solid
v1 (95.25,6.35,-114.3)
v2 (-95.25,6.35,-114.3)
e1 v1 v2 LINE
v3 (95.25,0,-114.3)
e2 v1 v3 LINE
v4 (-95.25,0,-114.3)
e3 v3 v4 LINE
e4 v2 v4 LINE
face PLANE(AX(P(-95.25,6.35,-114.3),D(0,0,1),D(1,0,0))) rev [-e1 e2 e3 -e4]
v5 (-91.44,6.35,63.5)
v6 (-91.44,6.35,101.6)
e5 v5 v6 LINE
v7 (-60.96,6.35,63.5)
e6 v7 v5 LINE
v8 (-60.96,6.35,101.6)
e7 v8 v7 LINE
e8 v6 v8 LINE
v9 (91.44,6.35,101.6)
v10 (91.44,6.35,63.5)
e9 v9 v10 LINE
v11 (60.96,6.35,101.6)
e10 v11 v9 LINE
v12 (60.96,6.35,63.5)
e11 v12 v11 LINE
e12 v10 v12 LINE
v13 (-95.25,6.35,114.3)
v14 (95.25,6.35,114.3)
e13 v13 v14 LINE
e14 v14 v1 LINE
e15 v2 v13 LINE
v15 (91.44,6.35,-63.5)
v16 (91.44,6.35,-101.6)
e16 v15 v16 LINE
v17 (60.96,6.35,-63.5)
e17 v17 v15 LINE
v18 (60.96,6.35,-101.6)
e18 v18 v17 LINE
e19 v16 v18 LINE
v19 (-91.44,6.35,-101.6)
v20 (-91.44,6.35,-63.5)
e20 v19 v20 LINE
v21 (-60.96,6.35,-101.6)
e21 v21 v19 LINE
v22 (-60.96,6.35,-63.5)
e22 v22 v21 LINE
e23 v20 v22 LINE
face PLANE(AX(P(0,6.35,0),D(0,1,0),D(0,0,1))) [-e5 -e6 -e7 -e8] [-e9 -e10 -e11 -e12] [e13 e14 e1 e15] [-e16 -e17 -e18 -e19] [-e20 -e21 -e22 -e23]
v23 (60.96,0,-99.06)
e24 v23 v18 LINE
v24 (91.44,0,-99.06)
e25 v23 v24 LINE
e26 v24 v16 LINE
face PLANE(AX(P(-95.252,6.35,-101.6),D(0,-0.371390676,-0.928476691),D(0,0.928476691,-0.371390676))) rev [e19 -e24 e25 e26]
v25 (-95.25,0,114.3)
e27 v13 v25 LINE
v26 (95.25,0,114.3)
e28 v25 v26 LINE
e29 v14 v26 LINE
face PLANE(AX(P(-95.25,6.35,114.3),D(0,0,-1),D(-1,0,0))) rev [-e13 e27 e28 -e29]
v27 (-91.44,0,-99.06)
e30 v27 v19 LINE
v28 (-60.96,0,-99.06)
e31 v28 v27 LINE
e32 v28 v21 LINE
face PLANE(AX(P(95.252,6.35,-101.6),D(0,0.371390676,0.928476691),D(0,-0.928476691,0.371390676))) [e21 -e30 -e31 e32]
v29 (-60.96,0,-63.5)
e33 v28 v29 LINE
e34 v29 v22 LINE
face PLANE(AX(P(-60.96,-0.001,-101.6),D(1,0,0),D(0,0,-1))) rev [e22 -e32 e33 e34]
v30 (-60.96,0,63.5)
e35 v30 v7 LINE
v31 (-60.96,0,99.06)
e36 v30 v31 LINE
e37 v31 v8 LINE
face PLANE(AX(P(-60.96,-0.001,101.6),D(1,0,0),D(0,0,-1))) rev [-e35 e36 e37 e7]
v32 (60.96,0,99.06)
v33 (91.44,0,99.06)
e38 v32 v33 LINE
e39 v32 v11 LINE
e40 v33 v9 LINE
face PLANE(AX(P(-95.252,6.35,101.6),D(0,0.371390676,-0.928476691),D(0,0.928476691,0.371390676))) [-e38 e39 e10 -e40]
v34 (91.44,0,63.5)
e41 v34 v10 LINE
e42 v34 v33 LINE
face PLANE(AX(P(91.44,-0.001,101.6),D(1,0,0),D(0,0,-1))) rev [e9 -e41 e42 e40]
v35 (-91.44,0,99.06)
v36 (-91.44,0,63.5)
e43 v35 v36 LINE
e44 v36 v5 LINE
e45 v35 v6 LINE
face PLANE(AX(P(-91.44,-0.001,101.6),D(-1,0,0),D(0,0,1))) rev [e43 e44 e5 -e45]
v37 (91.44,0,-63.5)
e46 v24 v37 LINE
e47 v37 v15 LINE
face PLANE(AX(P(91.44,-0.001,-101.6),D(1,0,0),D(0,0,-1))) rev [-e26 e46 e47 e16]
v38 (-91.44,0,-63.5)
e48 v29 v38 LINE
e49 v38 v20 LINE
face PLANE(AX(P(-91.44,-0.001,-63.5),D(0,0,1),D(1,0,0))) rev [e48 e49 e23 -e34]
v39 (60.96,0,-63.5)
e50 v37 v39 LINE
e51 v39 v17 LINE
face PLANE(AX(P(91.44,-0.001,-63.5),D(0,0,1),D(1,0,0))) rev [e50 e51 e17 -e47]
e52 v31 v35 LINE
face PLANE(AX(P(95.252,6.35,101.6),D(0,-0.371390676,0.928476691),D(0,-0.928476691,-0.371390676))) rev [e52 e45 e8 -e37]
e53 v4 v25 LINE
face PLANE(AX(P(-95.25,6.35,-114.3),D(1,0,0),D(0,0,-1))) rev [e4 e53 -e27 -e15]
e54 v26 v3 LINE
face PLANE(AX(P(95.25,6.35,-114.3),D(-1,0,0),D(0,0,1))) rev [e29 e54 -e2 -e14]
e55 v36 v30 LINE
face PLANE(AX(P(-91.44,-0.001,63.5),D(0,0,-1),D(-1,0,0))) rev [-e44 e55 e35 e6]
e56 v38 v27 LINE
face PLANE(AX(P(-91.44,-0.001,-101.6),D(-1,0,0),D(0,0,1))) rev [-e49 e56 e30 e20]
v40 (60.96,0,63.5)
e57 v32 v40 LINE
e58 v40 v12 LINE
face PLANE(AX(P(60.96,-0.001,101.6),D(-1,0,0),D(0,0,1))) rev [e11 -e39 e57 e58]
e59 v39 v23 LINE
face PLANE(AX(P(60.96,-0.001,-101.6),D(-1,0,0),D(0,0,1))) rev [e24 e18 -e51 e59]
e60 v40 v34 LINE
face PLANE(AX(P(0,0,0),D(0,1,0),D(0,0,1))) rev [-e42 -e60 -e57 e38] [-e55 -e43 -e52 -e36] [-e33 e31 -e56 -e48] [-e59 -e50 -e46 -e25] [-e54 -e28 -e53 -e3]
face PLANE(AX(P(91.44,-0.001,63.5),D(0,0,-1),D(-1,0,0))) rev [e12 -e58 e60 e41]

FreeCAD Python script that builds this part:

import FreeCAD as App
import Part
import Sketcher
from FreeCAD import Vector
Q = App.Units.Quantity

doc = App.newDocument("Part")
body = doc.addObject("PartDesign::Body", "Body")

# Sketch on XZ plane
sketch1 = body.newObject("Sketcher::SketchObject", "Sketch")
sketch1.AttachmentSupport = (doc.getObject("XZ_Plane"), [""])
sketch1.MapMode = "FlatFace"
sketch1.addGeometry(Part.LineSegment(Vector(-95, -114, 0), Vector(-95, 114, 0)), False)
sketch1.addGeometry(Part.LineSegment(Vector(-95, 114, 0), Vector(95, 114, 0)), False)
sketch1.addGeometry(Part.LineSegment(Vector(95, 114, 0), Vector(95, -114, 0)), False)
sketch1.addGeometry(Part.LineSegment(Vector(95, -114, 0), Vector(-95, -114, 0)), False)
sketch1.addConstraint(Sketcher.Constraint("Coincident", 0, 2, 1, 1))
sketch1.addConstraint(Sketcher.Constraint("Coincident", 1, 2, 2, 1))
sketch1.addConstraint(Sketcher.Constraint("Coincident", 2, 2, 3, 1))
sketch1.addConstraint(Sketcher.Constraint("Coincident", 3, 2, 0, 1))
sketch1.addConstraint(Sketcher.Constraint("Vertical", 0))
sketch1.addConstraint(Sketcher.Constraint("Horizontal", 1))
sketch1.addConstraint(Sketcher.Constraint("Vertical", 2))
sketch1.addConstraint(Sketcher.Constraint("Horizontal", 3))
sketch1.addConstraint(Sketcher.Constraint("Symmetric", 0, 2, 2, 2, -1, 1))
sketch1.addConstraint(Sketcher.Constraint("DistanceY", 0, 1, 0, 2, Q("9 in")))
sketch1.addConstraint(Sketcher.Constraint("DistanceX", 1, 1, 1, 2, Q("7.5 in")))
pad1 = body.newObject("PartDesign::Pad", "Pad")
pad1.Profile = sketch1
pad1.Length = Q("0.25 in")
pad1.Reversed = True

# Sketch on XZ plane
sketch2 = body.newObject("Sketcher::SketchObject", "Sketch001")
sketch2.AttachmentSupport = (doc.getObject("XZ_Plane"), [""])
sketch2.MapMode = "FlatFace"
sketch2.AttachmentOffset = App.Placement(Vector(0, 0, -0.25 * 25.4), App.Rotation())
sketch2.addGeometry(Part.LineSegment(Vector(-91, -102, 0), Vector(-91, -64, 0)), False)
sketch2.addGeometry(Part.LineSegment(Vector(-91, -64, 0), Vector(-61, -64, 0)), False)
sketch2.addGeometry(Part.LineSegment(Vector(-61, -64, 0), Vector(-61, -102, 0)), False)
sketch2.addGeometry(Part.LineSegment(Vector(-61, -102, 0), Vector(-91, -102, 0)), False)
sketch2.addConstraint(Sketcher.Constraint("Coincident", 0, 2, 1, 1))
sketch2.addConstraint(Sketcher.Constraint("Coincident", 1, 2, 2, 1))
sketch2.addConstraint(Sketcher.Constraint("Coincident", 2, 2, 3, 1))
sketch2.addConstraint(Sketcher.Constraint("Coincident", 3, 2, 0, 1))
sketch2.addConstraint(Sketcher.Constraint("Vertical", 0))
sketch2.addConstraint(Sketcher.Constraint("Horizontal", 1))
sketch2.addConstraint(Sketcher.Constraint("Vertical", 2))
sketch2.addConstraint(Sketcher.Constraint("Horizontal", 3))
sketch2.addConstraint(Sketcher.Constraint("DistanceX", 1, 1, 1, 2, Q("1.2 in")))
sketch2.addConstraint(Sketcher.Constraint("DistanceY", 0, 1, 0, 2, Q("1.5 in")))
sketch2.addConstraint(Sketcher.Constraint("DistanceY", 2, 2, -1, 1, Q("4 in")))
sketch2.addConstraint(Sketcher.Constraint("DistanceX", 0, 2, -1, 1, Q("3.6 in")))
pocket1 = body.newObject("PartDesign::Pocket", "Pocket")
pocket1.Profile = sketch2
pocket1.Type = "UpToFirst"
pocket1.Reversed = True

# Sketch on XZ plane
sketch3 = body.newObject("Sketcher::SketchObject", "Sketch002")
sketch3.AttachmentSupport = (doc.getObject("XZ_Plane"), [""])
sketch3.MapMode = "FlatFace"
sketch3.AttachmentOffset = App.Placement(Vector(0, 0, -0.25 * 25.4), App.Rotation())
sketch3.addGeometry(Part.LineSegment(Vector(-91, 64, 0), Vector(-91, 102, 0)), False)
sketch3.addGeometry(Part.LineSegment(Vector(-91, 102, 0), Vector(-61, 102, 0)), False)
sketch3.addGeometry(Part.LineSegment(Vector(-61, 102, 0), Vector(-61, 64, 0)), False)
sketch3.addGeometry(Part.LineSegment(Vector(-61, 64, 0), Vector(-91, 64, 0)), False)
sketch3.addConstraint(Sketcher.Constraint("Coincident", 0, 2, 1, 1))
sketch3.addConstraint(Sketcher.Constraint("Coincident", 1, 2, 2, 1))
sketch3.addConstraint(Sketcher.Constraint("Coincident", 2, 2, 3, 1))
sketch3.addConstraint(Sketcher.Constraint("Coincident", 3, 2, 0, 1))
sketch3.addConstraint(Sketcher.Constraint("Vertical", 0))
sketch3.addConstraint(Sketcher.Constraint("Horizontal", 1))
sketch3.addConstraint(Sketcher.Constraint("Vertical", 2))
sketch3.addConstraint(Sketcher.Constraint("Horizontal", 3))
sketch3.addConstraint(Sketcher.Constraint("DistanceX", 1, 1, 1, 2, Q("1.2 in")))
sketch3.addConstraint(Sketcher.Constraint("DistanceY", 0, 1, 0, 2, Q("1.5 in")))
sketch3.addConstraint(Sketcher.Constraint("DistanceY", -1, 1, 0, 2, Q("4 in")))
sketch3.addConstraint(Sketcher.Constraint("DistanceX", 0, 2, -1, 1, Q("3.6 in")))
pocket2 = body.newObject("PartDesign::Pocket", "Pocket001")
pocket2.Profile = sketch3
pocket2.Type = "UpToFirst"
pocket2.Reversed = True

# Sketch on XZ plane
sketch4 = body.newObject("Sketcher::SketchObject", "Sketch003")
sketch4.AttachmentSupport = (doc.getObject("XZ_Plane"), [""])
sketch4.MapMode = "FlatFace"
sketch4.AttachmentOffset = App.Placement(Vector(0, 0, -0.25 * 25.4), App.Rotation())
sketch4.addGeometry(Part.LineSegment(Vector(61, 64, 0), Vector(61, 102, 0)), False)
sketch4.addGeometry(Part.LineSegment(Vector(61, 102, 0), Vector(91, 102, 0)), False)
sketch4.addGeometry(Part.LineSegment(Vector(91, 102, 0), Vector(91, 64, 0)), False)
sketch4.addGeometry(Part.LineSegment(Vector(91, 64, 0), Vector(61, 64, 0)), False)
sketch4.addConstraint(Sketcher.Constraint("Coincident", 0, 2, 1, 1))
sketch4.addConstraint(Sketcher.Constraint("Coincident", 1, 2, 2, 1))
sketch4.addConstraint(Sketcher.Constraint("Coincident", 2, 2, 3, 1))
sketch4.addConstraint(Sketcher.Constraint("Coincident", 3, 2, 0, 1))
sketch4.addConstraint(Sketcher.Constraint("Vertical", 0))
sketch4.addConstraint(Sketcher.Constraint("Horizontal", 1))
sketch4.addConstraint(Sketcher.Constraint("Vertical", 2))
sketch4.addConstraint(Sketcher.Constraint("Horizontal", 3))
sketch4.addConstraint(Sketcher.Constraint("DistanceX", 1, 1, 1, 2, Q("1.2 in")))
sketch4.addConstraint(Sketcher.Constraint("DistanceY", 0, 1, 0, 2, Q("1.5 in")))
sketch4.addConstraint(Sketcher.Constraint("DistanceY", -1, 1, 0, 2, Q("4 in")))
sketch4.addConstraint(Sketcher.Constraint("DistanceX", -1, 1, 0, 2, Q("2.4 in")))
pocket3 = body.newObject("PartDesign::Pocket", "Pocket002")
pocket3.Profile = sketch4
pocket3.Type = "UpToFirst"
pocket3.Reversed = True

# Sketch on XZ plane
sketch5 = body.newObject("Sketcher::SketchObject", "Sketch004")
sketch5.AttachmentSupport = (doc.getObject("XZ_Plane"), [""])
sketch5.MapMode = "FlatFace"
sketch5.AttachmentOffset = App.Placement(Vector(0, 0, -0.25 * 25.4), App.Rotation())
sketch5.addGeometry(Part.LineSegment(Vector(61, -102, 0), Vector(61, -64, 0)), False)
sketch5.addGeometry(Part.LineSegment(Vector(61, -64, 0), Vector(91, -64, 0)), False)
sketch5.addGeometry(Part.LineSegment(Vector(91, -64, 0), Vector(91, -102, 0)), False)
sketch5.addGeometry(Part.LineSegment(Vector(91, -102, 0), Vector(61, -102, 0)), False)
sketch5.addConstraint(Sketcher.Constraint("Coincident", 0, 2, 1, 1))
sketch5.addConstraint(Sketcher.Constraint("Coincident", 1, 2, 2, 1))
sketch5.addConstraint(Sketcher.Constraint("Coincident", 2, 2, 3, 1))
sketch5.addConstraint(Sketcher.Constraint("Coincident", 3, 2, 0, 1))
sketch5.addConstraint(Sketcher.Constraint("Vertical", 0))
sketch5.addConstraint(Sketcher.Constraint("Horizontal", 1))
sketch5.addConstraint(Sketcher.Constraint("Vertical", 2))
sketch5.addConstraint(Sketcher.Constraint("Horizontal", 3))
sketch5.addConstraint(Sketcher.Constraint("DistanceX", 1, 1, 1, 2, Q("1.2 in")))
sketch5.addConstraint(Sketcher.Constraint("DistanceY", 0, 1, 0, 2, Q("1.5 in")))
sketch5.addConstraint(Sketcher.Constraint("DistanceY", 2, 2, -1, 1, Q("4 in")))
sketch5.addConstraint(Sketcher.Constraint("DistanceX", -1, 1, 0, 2, Q("2.4 in")))
pocket4 = body.newObject("PartDesign::Pocket", "Pocket003")
pocket4.Profile = sketch5
pocket4.Type = "UpToFirst"
pocket4.Reversed = True

# Sketch on YZ plane
sketch6 = body.newObject("Sketcher::SketchObject", "Sketch005")
sketch6.AttachmentSupport = (doc.getObject("YZ_Plane"), [""])
sketch6.MapMode = "FlatFace"
sketch6.AttachmentOffset = App.Placement(Vector(0, 0, 3.6 * 25.4), App.Rotation())
sketch6.addGeometry(Part.LineSegment(Vector(6.3, -101.6, 0), Vector(0, -101.6, 0)), False)
sketch6.addGeometry(Part.LineSegment(Vector(0, -101.6, 0), Vector(0, -99.1, 0)), False)
sketch6.addGeometry(Part.LineSegment(Vector(0, -99.1, 0), Vector(6.3, -101.6, 0)), False)
sketch6.addConstraint(Sketcher.Constraint("Coincident", 0, 2, 1, 1))
sketch6.addConstraint(Sketcher.Constraint("Coincident", 1, 2, 2, 1))
sketch6.addConstraint(Sketcher.Constraint("Coincident", 2, 2, 0, 1))
sketch6.addConstraint(Sketcher.Constraint("Horizontal", 0))
sketch6.addConstraint(Sketcher.Constraint("Vertical", 1))
sketch6.addConstraint(Sketcher.Constraint("PointOnObject", 0, 2, -2))
sketch6.addConstraint(Sketcher.Constraint("DistanceY", 1, 1, 1, 2, Q("0.1 in")))
sketch6.addConstraint(Sketcher.Constraint("DistanceY", 0, 2, -1, 1, Q("4 in")))
sketch6.addConstraint(Sketcher.Constraint("DistanceX", 0, 2, 0, 1, Q("0.25 in")))
pad2 = body.newObject("PartDesign::Pad", "Pad001")
pad2.Profile = sketch6
pad2.Length = Q("1.2 in")
pad2.Reversed = True
doc.recompute()

mirrored = body.newObject("PartDesign::Mirrored", "Mirrored")
mirrored.Originals = [pad2]
mirrored.MirrorPlane = (doc.getObject("XY_Plane"), [""])
body.Tip = mirrored
doc.recompute()

mirrored2 = body.newObject("PartDesign::Mirrored", "Mirrored001")
mirrored2.Originals = [pad2]
mirrored2.MirrorPlane = (doc.getObject("YZ_Plane"), [""])
body.Tip = mirrored2

# Sketch on YZ plane
sketch7 = body.newObject("Sketcher::SketchObject", "Sketch006")
sketch7.AttachmentSupport = (doc.getObject("YZ_Plane"), [""])
sketch7.MapMode = "FlatFace"
sketch7.AttachmentOffset = App.Placement(Vector(0, 0, -3.6 * 25.4), App.Rotation())
sketch7.addGeometry(Part.LineSegment(Vector(6.3, 101.6, 0), Vector(0, 101.6, 0)), False)
sketch7.addGeometry(Part.LineSegment(Vector(0, 101.6, 0), Vector(0, 99.1, 0)), False)
sketch7.addGeometry(Part.LineSegment(Vector(0, 99.1, 0), Vector(6.3, 101.6, 0)), False)
sketch7.addConstraint(Sketcher.Constraint("Coincident", 0, 2, 1, 1))
sketch7.addConstraint(Sketcher.Constraint("Coincident", 1, 2, 2, 1))
sketch7.addConstraint(Sketcher.Constraint("Coincident", 2, 2, 0, 1))
sketch7.addConstraint(Sketcher.Constraint("Horizontal", 0))
sketch7.addConstraint(Sketcher.Constraint("Vertical", 1))
sketch7.addConstraint(Sketcher.Constraint("PointOnObject", 0, 2, -2))
sketch7.addConstraint(Sketcher.Constraint("DistanceY", 1, 2, 1, 1, Q("0.1 in")))
sketch7.addConstraint(Sketcher.Constraint("DistanceY", -1, 1, 0, 2, Q("4 in")))
sketch7.addConstraint(Sketcher.Constraint("DistanceX", 0, 2, 0, 1, Q("0.25 in")))
pad3 = body.newObject("PartDesign::Pad", "Pad002")
pad3.Profile = sketch7
pad3.Length = Q("1.2 in")

doc.recompute()
